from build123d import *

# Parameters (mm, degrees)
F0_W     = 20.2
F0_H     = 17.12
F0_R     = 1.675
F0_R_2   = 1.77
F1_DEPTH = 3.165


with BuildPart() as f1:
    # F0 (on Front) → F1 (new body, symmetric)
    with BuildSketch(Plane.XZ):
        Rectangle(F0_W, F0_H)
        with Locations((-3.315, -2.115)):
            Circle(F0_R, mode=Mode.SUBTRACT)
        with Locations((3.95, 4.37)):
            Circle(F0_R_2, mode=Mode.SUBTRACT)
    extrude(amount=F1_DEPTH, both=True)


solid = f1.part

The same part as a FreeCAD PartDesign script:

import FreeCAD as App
import Part
import Sketcher
Q = App.Units.Quantity

doc = App.newDocument("Part")
body = doc.addObject("PartDesign::Body", "Body")

sketch1 = body.newObject("Sketcher::SketchObject", "Sketch")
sketch1.AttachmentSupport = (doc.getObject("XZ_Plane"), [""])
sketch1.MapMode = "FlatFace"
sketch1.addGeometry([
    Part.LineSegment(App.Vector(-10.1, 8.6, 0), App.Vector(-10.1, -8.6, 0)),
    Part.LineSegment(App.Vector(-10.1, -8.6, 0), App.Vector(10.1, -8.6, 0)),
    Part.LineSegment(App.Vector(10.1, -8.6, 0), App.Vector(10.1, 8.6, 0)),
    Part.LineSegment(App.Vector(10.1, 8.6, 0), App.Vector(-10.1, 8.6, 0)),
    Part.Circle(App.Vector(-3.3, -2.1, 0), App.Vector(0, 0, 1), 1.7),
    Part.Circle(App.Vector(4, 4.4, 0), App.Vector(0, 0, 1), 1.8),
], False)
sketch1.addConstraint([
    Sketcher.Constraint("Coincident", 0, 2, 1, 1),
    Sketcher.Constraint("Coincident", 1, 2, 2, 1),
    Sketcher.Constraint("Coincident", 2, 2, 3, 1),
    Sketcher.Constraint("Coincident", 3, 2, 0, 1),
    Sketcher.Constraint("Vertical", 0),
    Sketcher.Constraint("Horizontal", 1),
    Sketcher.Constraint("Vertical", 2),
    Sketcher.Constraint("Horizontal", 3),
    Sketcher.Constraint("Symmetric", 0, 2, 2, 2, -1, 1),
    Sketcher.Constraint("Diameter", 4, Q("3.35 mm")),
    Sketcher.Constraint("Diameter", 5, Q("3.54 mm")),
    Sketcher.Constraint("DistanceX", 1, 1, 1, 2, Q("20.2 mm")),
    Sketcher.Constraint("DistanceY", 0, 2, 0, 1, Q("17.12 mm")),
    Sketcher.Constraint("DistanceX", -1, 1, 5, 3, Q("3.95 mm")),
    Sketcher.Constraint("DistanceY", -1, 1, 5, 3, Q("4.37 mm")),
    Sketcher.Constraint("DistanceX", 4, 3, -1, 1, Q("3.315 mm")),
    Sketcher.Constraint("DistanceY", 4, 3, -1, 1, Q("2.115 mm")),
])
pad1 = body.newObject("PartDesign::Pad", "Pad")
pad1.Profile = sketch1
pad1.Length = 6.33
pad1.Midplane = True

doc.recompute()
